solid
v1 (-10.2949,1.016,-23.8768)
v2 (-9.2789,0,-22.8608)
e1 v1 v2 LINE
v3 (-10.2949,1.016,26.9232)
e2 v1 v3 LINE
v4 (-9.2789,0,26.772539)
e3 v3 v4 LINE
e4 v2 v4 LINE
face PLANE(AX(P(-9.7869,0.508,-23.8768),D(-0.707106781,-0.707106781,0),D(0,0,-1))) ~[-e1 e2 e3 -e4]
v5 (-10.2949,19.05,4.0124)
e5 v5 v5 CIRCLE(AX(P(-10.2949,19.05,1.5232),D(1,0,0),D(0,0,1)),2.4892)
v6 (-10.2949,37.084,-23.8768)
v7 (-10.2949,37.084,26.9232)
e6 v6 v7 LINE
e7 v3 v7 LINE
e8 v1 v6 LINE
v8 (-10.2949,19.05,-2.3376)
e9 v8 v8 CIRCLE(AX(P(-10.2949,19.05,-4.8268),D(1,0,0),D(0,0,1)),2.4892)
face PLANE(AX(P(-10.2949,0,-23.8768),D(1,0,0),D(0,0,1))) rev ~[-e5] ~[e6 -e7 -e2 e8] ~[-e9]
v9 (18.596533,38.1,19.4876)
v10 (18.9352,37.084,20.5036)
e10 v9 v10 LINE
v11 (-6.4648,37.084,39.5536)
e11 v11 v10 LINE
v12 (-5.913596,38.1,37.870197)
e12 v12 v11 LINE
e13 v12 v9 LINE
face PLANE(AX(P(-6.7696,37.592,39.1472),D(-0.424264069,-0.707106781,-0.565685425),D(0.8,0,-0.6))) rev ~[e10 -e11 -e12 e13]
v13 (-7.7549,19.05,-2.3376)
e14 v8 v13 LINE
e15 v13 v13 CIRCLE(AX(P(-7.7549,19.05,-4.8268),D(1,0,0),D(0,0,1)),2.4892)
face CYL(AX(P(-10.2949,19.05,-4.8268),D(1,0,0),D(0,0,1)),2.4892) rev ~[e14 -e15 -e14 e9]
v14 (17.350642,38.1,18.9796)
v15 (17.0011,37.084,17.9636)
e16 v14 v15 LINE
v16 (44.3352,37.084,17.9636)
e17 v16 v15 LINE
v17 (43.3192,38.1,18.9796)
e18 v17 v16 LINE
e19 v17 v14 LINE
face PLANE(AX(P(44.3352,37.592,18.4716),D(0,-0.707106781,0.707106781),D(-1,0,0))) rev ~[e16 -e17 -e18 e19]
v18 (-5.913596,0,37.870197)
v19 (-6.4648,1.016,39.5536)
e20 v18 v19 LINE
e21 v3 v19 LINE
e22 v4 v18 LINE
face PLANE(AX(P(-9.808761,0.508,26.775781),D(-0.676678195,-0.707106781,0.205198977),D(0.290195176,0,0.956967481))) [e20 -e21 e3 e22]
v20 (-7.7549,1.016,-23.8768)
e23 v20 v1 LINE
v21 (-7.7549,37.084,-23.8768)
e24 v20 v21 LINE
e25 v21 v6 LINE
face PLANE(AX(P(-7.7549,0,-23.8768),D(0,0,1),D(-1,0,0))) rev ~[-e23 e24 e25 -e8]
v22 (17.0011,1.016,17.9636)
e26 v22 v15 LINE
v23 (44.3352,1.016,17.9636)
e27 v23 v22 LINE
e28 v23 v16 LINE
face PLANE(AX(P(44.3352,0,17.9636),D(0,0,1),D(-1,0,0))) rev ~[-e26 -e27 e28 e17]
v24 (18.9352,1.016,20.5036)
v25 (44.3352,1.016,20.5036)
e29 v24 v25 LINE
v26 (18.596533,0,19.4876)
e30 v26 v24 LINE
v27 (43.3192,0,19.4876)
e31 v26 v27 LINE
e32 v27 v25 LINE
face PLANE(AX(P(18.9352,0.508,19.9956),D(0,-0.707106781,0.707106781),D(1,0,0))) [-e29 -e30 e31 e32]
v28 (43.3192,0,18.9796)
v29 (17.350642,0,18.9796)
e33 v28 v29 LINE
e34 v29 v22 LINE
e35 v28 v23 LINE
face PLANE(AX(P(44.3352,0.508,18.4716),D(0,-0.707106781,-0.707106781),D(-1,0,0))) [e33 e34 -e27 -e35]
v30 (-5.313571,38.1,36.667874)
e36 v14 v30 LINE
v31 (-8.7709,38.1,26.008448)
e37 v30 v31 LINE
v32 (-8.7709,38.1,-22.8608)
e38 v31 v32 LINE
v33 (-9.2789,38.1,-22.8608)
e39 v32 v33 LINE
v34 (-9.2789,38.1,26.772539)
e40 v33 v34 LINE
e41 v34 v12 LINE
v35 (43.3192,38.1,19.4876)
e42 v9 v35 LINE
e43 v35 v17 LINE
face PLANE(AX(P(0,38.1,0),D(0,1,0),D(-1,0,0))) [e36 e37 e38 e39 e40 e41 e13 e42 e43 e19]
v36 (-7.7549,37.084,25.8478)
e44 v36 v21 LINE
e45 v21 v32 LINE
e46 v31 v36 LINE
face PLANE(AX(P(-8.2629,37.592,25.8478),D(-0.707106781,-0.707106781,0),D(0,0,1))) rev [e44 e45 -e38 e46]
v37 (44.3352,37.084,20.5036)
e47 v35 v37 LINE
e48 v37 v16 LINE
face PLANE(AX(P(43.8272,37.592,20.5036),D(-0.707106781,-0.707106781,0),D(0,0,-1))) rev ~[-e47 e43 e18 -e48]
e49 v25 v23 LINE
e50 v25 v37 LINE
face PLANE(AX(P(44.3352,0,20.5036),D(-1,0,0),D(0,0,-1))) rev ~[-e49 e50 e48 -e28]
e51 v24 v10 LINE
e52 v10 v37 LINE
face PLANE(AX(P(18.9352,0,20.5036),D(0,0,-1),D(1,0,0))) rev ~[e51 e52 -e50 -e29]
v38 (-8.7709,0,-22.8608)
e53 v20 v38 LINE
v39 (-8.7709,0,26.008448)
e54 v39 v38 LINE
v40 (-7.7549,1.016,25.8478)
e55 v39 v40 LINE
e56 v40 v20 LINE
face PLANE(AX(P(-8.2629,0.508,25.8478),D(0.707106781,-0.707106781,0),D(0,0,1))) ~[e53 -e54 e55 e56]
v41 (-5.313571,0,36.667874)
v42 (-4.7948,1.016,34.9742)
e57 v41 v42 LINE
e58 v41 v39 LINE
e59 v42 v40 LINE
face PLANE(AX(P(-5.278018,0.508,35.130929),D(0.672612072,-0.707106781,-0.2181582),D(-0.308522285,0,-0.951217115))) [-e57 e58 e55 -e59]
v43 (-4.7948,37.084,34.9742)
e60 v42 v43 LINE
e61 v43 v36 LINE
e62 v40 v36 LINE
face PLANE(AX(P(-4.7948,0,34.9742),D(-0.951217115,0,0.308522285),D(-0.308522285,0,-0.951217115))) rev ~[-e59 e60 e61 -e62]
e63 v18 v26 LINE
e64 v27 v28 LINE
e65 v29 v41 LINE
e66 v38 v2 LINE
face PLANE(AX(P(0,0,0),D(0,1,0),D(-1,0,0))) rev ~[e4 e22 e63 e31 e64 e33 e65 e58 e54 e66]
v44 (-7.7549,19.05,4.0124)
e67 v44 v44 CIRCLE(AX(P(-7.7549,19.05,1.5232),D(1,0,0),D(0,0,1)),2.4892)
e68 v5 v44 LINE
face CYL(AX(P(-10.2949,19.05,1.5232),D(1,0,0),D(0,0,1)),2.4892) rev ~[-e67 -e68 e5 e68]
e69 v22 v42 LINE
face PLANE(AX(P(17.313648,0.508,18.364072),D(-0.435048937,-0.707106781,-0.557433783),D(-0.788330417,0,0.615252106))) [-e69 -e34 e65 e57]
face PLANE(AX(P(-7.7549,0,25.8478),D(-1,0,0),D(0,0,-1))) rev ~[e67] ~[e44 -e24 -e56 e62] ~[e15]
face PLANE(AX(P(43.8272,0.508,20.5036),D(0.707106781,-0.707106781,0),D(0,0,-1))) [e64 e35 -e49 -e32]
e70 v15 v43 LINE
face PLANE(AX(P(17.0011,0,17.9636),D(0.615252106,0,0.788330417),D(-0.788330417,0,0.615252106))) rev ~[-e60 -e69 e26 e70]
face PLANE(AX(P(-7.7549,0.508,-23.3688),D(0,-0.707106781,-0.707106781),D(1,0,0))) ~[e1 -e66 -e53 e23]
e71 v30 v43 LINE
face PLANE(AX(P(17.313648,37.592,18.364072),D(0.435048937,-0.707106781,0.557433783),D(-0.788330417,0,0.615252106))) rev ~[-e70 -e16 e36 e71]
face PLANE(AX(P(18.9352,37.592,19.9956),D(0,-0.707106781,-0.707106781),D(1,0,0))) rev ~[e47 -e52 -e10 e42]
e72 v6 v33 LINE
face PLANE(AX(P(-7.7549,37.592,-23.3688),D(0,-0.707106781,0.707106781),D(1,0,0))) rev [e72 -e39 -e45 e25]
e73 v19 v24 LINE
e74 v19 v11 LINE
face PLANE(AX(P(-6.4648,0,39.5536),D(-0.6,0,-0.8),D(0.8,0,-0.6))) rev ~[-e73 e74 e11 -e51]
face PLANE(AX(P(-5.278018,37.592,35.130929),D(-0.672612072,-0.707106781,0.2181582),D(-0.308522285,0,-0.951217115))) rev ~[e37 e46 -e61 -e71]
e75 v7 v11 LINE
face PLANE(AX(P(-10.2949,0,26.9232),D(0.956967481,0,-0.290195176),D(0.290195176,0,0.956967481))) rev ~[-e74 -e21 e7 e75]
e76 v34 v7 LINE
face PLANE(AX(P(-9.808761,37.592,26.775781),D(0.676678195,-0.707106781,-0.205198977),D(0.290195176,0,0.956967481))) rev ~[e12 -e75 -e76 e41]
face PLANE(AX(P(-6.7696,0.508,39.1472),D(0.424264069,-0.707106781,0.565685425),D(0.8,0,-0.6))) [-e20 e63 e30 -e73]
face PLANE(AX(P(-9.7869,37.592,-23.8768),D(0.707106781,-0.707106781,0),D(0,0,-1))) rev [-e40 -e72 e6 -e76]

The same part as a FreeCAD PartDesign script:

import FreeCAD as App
import Part
import Sketcher
from FreeCAD import Vector
Q = App.Units.Quantity


def edges_at(feature, points):
    """Names of the edges that pass closest to the given points."""
    edges = feature.Shape.Edges
    near = lambda p: min(range(len(edges)), key=lambda i: edges[i].distToShape(Part.Vertex(*p))[0])
    return sorted({f"Edge{near(p) + 1}" for p in points})

doc = App.newDocument("Part")
body = doc.addObject("PartDesign::Body", "Body")

# Sketch on XZ plane
sketch1 = body.newObject("Sketcher::SketchObject", "Sketch")
sketch1.AttachmentSupport = (doc.getObject("XZ_Plane"), [""])
sketch1.MapMode = "FlatFace"
sketch1.addGeometry([
    Part.LineSegment(Vector(-7.7549, -23.8768, 0), Vector(-10.2949, -23.8768, 0)),  # 0
    Part.LineSegment(Vector(-10.2949, -23.8768, 0), Vector(-10.2949, 26.9232, 0)),  # 1
    Part.LineSegment(Vector(-10.2949, 26.9232, 0), Vector(-6.4648, 39.5536, 0)),  # 2
    Part.LineSegment(Vector(-6.4648, 39.5536, 0), Vector(18.9352, 20.5036, 0)),  # 3
    Part.LineSegment(Vector(18.9352, 20.5036, 0), Vector(44.3352, 20.5036, 0)),  # 4
    Part.LineSegment(Vector(44.3352, 20.5036, 0), Vector(44.3352, 17.9636, 0)),  # 5
    Part.LineSegment(Vector(44.3352, 17.9636, 0), Vector(17.0011, 17.9636, 0)),  # 6
    Part.LineSegment(Vector(17.0011, 17.9636, 0), Vector(-4.7948, 34.9742, 0)),  # 7
    Part.LineSegment(Vector(-4.7948, 34.9742, 0), Vector(-7.7549, 25.8478, 0)),  # 8
    Part.LineSegment(Vector(-7.7549, 25.8478, 0), Vector(-7.7549, -23.8768, 0)),  # 9
], False)
sketch1.addConstraint([
    Sketcher.Constraint("Coincident", 0, 2, 1, 1),
    Sketcher.Constraint("Coincident", 1, 2, 2, 1),
    Sketcher.Constraint("Coincident", 2, 2, 3, 1),
    Sketcher.Constraint("Coincident", 3, 2, 4, 1),
    Sketcher.Constraint("Coincident", 4, 2, 5, 1),
    Sketcher.Constraint("Coincident", 5, 2, 6, 1),
    Sketcher.Constraint("Coincident", 6, 2, 7, 1),
    Sketcher.Constraint("Coincident", 7, 2, 8, 1),
    Sketcher.Constraint("Coincident", 8, 2, 9, 1),
    Sketcher.Constraint("Coincident", 9, 2, 0, 1),
    Sketcher.Constraint("Horizontal", 0),
    Sketcher.Constraint("Vertical", 1),
    Sketcher.Constraint("Horizontal", 4),
    Sketcher.Constraint("Vertical", 5),
    Sketcher.Constraint("Horizontal", 6),
    Sketcher.Constraint("Vertical", 9),
    Sketcher.Constraint("DistanceX", 4, 1, 4, 2, Q("1 in")),
    Sketcher.Constraint("DistanceY", 1, 1, 1, 2, Q("2 in")),
    Sketcher.Constraint("DistanceX", 0, 2, 0, 1, Q("0.1 in")),
    Sketcher.Constraint("DistanceY", 5, 2, 5, 1, Q("0.1 in")),
    Sketcher.Constraint("DistanceX", 2, 2, 3, 2, Q("1 in")),
    Sketcher.Constraint("DistanceY", 3, 2, 2, 2, Q("0.75 in")),
    Sketcher.Constraint("Distance", 7, Q("1.0885 in")),
    Sketcher.Constraint("DistanceX", 6, 2, 6, 1, 27.334),
    Sketcher.Constraint("DistanceY", 9, 2, 9, 1, 49.7246),
    Sketcher.Constraint("DistanceX", 0, 2, -1, 1, Q("0.4053 in")),
    Sketcher.Constraint("DistanceX", 1, 2, 2, 2, Q("0.1508 in")),
    Sketcher.Constraint("DistanceY", 7, 2, 2, 2, Q("0.1803 in")),
    Sketcher.Constraint("DistanceY", 8, 2, 7, 2, Q("0.3593 in")),
    Sketcher.Constraint("DistanceY", 0, 2, -1, 1, 23.8768),
])
pad1 = body.newObject("PartDesign::Pad", "Pad")
pad1.Profile = sketch1
pad1.Length = Q("1.5 in")
pad1.Reversed = True

# Sketch on YZ plane
sketch2 = body.newObject("Sketcher::SketchObject", "Sketch001")
sketch2.AttachmentSupport = (doc.getObject("YZ_Plane"), [""])
sketch2.MapMode = "FlatFace"
sketch2.AttachmentOffset = App.Placement(Vector(0, 0, -0.405311 * 25.4), App.Rotation())
sketch2.addGeometry([
    Part.Circle(Vector(19.1, -4.8, 0), Vector(0, 0, 1), 2.5),
    Part.Circle(Vector(19.1, 1.5, 0), Vector(0, 0, 1), 2.5),
], False)
sketch2.addConstraint([
    Sketcher.Constraint("Equal", 0, 1),
    Sketcher.Constraint("Vertical", 0, 3, 1, 3),
    Sketcher.Constraint("Diameter", 0, Q("0.196 in")),
    Sketcher.Constraint("DistanceX", -1, 1, 0, 3, Q("0.75 in")),
    Sketcher.Constraint("DistanceY", 0, 3, 1, 3, Q("0.25 in")),
    Sketcher.Constraint("DistanceY", 0, 3, -1, 1, 4.8268),
])
doc.recompute()
hole = body.newObject("PartDesign::Hole", "Hole")
hole.Profile = sketch2
hole.ThreadType = "None"
hole.Diameter = Q("0.196 in")
hole.DepthType = "ThroughAll"
hole.Reversed = True
doc.recompute()

chamfer = body.newObject("PartDesign::Chamfer", "Chamfer")
chamfer.Base = (hole, edges_at(hole, [
    (-10.295, 0, 1.523),
    (-8.38, 0, 33.238),
    (6.235, 0, 30.029),
    (31.635, 0, 20.504),
    (44.335, 0, 19.234),
    (30.668, 0, 17.964),
    (6.103, 0, 26.469),
    (-6.275, 0, 30.411),
    (-7.755, 0, 0.986),
    (-9.025, 0, -23.877),
    (31.635, 38.1, 20.504),
    (44.335, 38.1, 19.234),
    (30.668, 38.1, 17.964),
    (6.235, 38.1, 30.029),
    (6.103, 38.1, 26.469),
    (-6.275, 38.1, 30.411),
    (-8.38, 38.1, 33.238),
    (-7.755, 38.1, 0.986),
    (-10.295, 38.1, 1.523),
    (-9.025, 38.1, -23.877),
]))
chamfer.Size = Q("0.04 in")

doc.recompute()
